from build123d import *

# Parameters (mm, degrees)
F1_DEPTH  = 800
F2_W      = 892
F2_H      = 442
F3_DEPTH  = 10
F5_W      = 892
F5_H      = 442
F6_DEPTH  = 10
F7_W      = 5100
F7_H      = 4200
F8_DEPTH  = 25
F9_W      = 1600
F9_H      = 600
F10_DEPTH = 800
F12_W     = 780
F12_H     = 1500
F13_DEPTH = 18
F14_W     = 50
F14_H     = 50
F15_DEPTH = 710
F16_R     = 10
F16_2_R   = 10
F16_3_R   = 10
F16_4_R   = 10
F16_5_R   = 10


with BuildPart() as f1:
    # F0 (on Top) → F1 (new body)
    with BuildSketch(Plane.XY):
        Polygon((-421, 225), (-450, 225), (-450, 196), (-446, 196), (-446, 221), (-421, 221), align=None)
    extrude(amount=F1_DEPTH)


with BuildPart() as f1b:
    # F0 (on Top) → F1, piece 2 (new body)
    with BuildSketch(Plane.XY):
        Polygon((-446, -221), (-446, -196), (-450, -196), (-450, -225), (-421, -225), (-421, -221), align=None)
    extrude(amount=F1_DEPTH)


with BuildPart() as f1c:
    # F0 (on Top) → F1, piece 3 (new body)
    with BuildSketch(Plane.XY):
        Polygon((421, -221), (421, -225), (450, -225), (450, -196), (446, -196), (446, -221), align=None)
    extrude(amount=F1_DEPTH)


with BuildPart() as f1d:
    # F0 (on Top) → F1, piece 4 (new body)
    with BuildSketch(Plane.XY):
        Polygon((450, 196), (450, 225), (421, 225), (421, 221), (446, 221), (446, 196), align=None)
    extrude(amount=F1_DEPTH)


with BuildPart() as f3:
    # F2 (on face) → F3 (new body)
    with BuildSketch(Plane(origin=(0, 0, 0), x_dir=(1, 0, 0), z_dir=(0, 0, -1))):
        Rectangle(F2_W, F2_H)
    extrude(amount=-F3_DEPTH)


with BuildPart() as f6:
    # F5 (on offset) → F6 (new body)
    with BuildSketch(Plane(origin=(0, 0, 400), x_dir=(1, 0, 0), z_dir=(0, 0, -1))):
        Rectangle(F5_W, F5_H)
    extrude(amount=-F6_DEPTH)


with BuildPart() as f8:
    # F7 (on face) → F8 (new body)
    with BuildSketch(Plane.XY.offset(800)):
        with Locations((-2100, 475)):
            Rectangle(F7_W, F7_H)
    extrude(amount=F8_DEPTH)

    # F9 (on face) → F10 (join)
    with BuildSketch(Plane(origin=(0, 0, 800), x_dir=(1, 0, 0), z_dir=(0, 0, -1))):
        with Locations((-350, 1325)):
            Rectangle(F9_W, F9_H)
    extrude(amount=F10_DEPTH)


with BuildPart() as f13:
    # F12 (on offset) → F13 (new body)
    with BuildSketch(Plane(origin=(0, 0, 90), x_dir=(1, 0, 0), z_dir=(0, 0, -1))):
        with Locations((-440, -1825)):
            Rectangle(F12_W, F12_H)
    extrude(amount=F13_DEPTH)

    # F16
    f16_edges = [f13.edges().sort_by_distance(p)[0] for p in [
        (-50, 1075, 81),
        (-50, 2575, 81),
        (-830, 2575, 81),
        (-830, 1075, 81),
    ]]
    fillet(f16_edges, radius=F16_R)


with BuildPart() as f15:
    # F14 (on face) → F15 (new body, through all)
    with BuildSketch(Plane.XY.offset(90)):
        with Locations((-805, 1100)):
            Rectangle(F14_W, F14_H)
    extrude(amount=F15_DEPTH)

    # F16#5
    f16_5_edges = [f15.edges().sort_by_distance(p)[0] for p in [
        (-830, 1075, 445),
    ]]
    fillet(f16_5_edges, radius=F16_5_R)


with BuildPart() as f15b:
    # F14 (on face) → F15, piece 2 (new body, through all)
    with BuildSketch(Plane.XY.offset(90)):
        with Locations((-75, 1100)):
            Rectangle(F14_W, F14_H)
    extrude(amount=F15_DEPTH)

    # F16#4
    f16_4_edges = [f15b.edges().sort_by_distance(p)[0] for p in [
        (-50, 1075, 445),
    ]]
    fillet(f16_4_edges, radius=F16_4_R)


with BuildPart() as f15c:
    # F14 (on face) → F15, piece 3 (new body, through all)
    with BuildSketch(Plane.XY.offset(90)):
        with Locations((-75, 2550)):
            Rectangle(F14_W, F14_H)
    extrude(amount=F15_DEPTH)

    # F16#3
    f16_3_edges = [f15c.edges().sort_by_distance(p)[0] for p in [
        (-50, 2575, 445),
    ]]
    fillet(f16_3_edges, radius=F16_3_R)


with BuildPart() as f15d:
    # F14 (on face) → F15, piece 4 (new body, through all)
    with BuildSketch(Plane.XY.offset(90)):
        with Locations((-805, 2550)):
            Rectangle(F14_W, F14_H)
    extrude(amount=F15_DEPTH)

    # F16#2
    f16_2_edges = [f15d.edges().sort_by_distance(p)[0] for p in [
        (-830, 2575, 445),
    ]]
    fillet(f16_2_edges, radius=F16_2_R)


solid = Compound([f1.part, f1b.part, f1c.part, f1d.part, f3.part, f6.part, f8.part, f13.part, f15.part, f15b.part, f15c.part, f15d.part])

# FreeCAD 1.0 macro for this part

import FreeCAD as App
import Part
import Sketcher
Q = App.Units.Quantity


def edges_at(feature, points):
    """Names of the edges that pass closest to the given points."""
    edges = feature.Shape.Edges
    near = lambda p: min(range(len(edges)), key=lambda i: edges[i].distToShape(Part.Vertex(*p))[0])
    return sorted({f"Edge{near(p) + 1}" for p in points})


def add_polygon(sketch, points):
    """Adds a closed chain of lines whose ends are joined by coincident constraints."""
    first, n = sketch.GeometryCount, len(points)
    for a, b in zip(points, points[1:] + points[:1]):
        sketch.addGeometry(Part.LineSegment(App.Vector(*a, 0), App.Vector(*b, 0)), False)
    for i in range(n):
        sketch.addConstraint(Sketcher.Constraint("Coincident", first + i, 2, first + (i + 1) % n, 1))

doc = App.newDocument("Part")
body = doc.addObject("PartDesign::Body", "Body")

# Sketch on XY plane
sketch1 = body.newObject("Sketcher::SketchObject", "Sketch")
sketch1.AttachmentSupport = (doc.getObject("XY_Plane"), [""])
sketch1.MapMode = "FlatFace"
add_polygon(sketch1, [(-421, 225), (-450, 225), (-450, 196), (-446, 196), (-446, 221), (-421, 221)])  # lines 0-5
sketch1.addConstraint([
    Sketcher.Constraint("Horizontal", 0),
    Sketcher.Constraint("Vertical", 1),
    Sketcher.Constraint("Horizontal", 2),
    Sketcher.Constraint("Vertical", 3),
    Sketcher.Constraint("Horizontal", 4),
    Sketcher.Constraint("Vertical", 5),
    Sketcher.Constraint("Equal", 0, 1),
    Sketcher.Constraint("Equal", 4, 3),
    Sketcher.Constraint("DistanceX", 0, 2, 0, 1, Q("29 mm")),
    Sketcher.Constraint("DistanceX", 2, 1, 2, 2, Q("4 mm")),
    Sketcher.Constraint("DistanceX", 0, 2, -1, 1, Q("450 mm")),
    Sketcher.Constraint("DistanceY", -1, 1, 0, 2, Q("225 mm")),
])
pad1 = body.newObject("PartDesign::Pad", "Pad")
pad1.Profile = sketch1
pad1.Length = 800
body2 = doc.addObject("PartDesign::Body", "Body001")

# Sketch on XY plane
sketch2 = body2.newObject("Sketcher::SketchObject", "Sketch001")
sketch2.AttachmentSupport = (doc.getObject("XY_Plane001"), [""])
sketch2.MapMode = "FlatFace"
add_polygon(sketch2, [(-446, -221), (-446, -196), (-450, -196), (-450, -225), (-421, -225), (-421, -221)])  # lines 0-5
sketch2.addConstraint([
    Sketcher.Constraint("Vertical", 0),
    Sketcher.Constraint("Horizontal", 1),
    Sketcher.Constraint("Vertical", 2),
    Sketcher.Constraint("Horizontal", 3),
    Sketcher.Constraint("Vertical", 4),
    Sketcher.Constraint("Horizontal", 5),
    Sketcher.Constraint("Equal", 5, 0),
    Sketcher.Constraint("Equal", 3, 2),
    Sketcher.Constraint("DistanceX", 1, 2, 1, 1, Q("4 mm")),
    Sketcher.Constraint("DistanceX", 3, 1, 3, 2, Q("29 mm")),
    Sketcher.Constraint("DistanceX", 0, 2, -1, 1, Q("446 mm")),
    Sketcher.Constraint("DistanceY", 0, 2, -1, 1, Q("196 mm")),
])
pad2 = body2.newObject("PartDesign::Pad", "Pad001")
pad2.Profile = sketch2
pad2.Length = 800
body3 = doc.addObject("PartDesign::Body", "Body002")

# Sketch on XY plane
sketch3 = body3.newObject("Sketcher::SketchObject", "Sketch002")
sketch3.AttachmentSupport = (doc.getObject("XY_Plane002"), [""])
sketch3.MapMode = "FlatFace"
add_polygon(sketch3, [(421, -221), (421, -225), (450, -225), (450, -196), (446, -196), (446, -221)])  # lines 0-5
sketch3.addConstraint([
    Sketcher.Constraint("Vertical", 0),
    Sketcher.Constraint("Horizontal", 1),
    Sketcher.Constraint("Vertical", 2),
    Sketcher.Constraint("Horizontal", 3),
    Sketcher.Constraint("Vertical", 4),
    Sketcher.Constraint("Horizontal", 5),
    Sketcher.Constraint("Equal", 3, 0),
    Sketcher.Constraint("Equal", 1, 2),
    Sketcher.Constraint("DistanceX", 1, 1, 1, 2, Q("29 mm")),
    Sketcher.Constraint("DistanceX", 3, 2, 3, 1, Q("4 mm")),
    Sketcher.Constraint("DistanceX", -1, 1, 0, 2, Q("421 mm")),
    Sketcher.Constraint("DistanceY", 0, 2, -1, 1, Q("225 mm")),
])
pad3 = body3.newObject("PartDesign::Pad", "Pad002")
pad3.Profile = sketch3
pad3.Length = 800
body4 = doc.addObject("PartDesign::Body", "Body003")

# Sketch on XY plane
sketch4 = body4.newObject("Sketcher::SketchObject", "Sketch003")
sketch4.AttachmentSupport = (doc.getObject("XY_Plane003"), [""])
sketch4.MapMode = "FlatFace"
add_polygon(sketch4, [(450, 196), (450, 225), (421, 225), (421, 221), (446, 221), (446, 196)])  # lines 0-5
sketch4.addConstraint([
    Sketcher.Constraint("Vertical", 0),
    Sketcher.Constraint("Horizontal", 1),
    Sketcher.Constraint("Vertical", 2),
    Sketcher.Constraint("Horizontal", 3),
    Sketcher.Constraint("Vertical", 4),
    Sketcher.Constraint("Horizontal", 5),
    Sketcher.Constraint("Equal", 1, 0),
    Sketcher.Constraint("Equal", 5, 2),
    Sketcher.Constraint("DistanceX", 1, 2, 1, 1, Q("29 mm")),
    Sketcher.Constraint("DistanceX", 3, 1, 3, 2, Q("25 mm")),
    Sketcher.Constraint("DistanceX", -1, 1, 0, 2, Q("450 mm")),
    Sketcher.Constraint("DistanceY", -1, 1, 0, 2, Q("225 mm")),
])
pad4 = body4.newObject("PartDesign::Pad", "Pad003")
pad4.Profile = sketch4
pad4.Length = 800
body5 = doc.addObject("PartDesign::Body", "Body004")

# Sketch on XY plane
sketch5 = body5.newObject("Sketcher::SketchObject", "Sketch004")
sketch5.AttachmentSupport = (doc.getObject("XY_Plane004"), [""])
sketch5.MapMode = "FlatFace"
add_polygon(sketch5, [(-446, -221), (-446, 221), (446, 221), (446, -221)])  # lines 0-3
sketch5.addConstraint([
    Sketcher.Constraint("Vertical", 0),
    Sketcher.Constraint("Horizontal", 1),
    Sketcher.Constraint("Vertical", 2),
    Sketcher.Constraint("Horizontal", 3),
    Sketcher.Constraint("Symmetric", 0, 2, 2, 2, -1, 1),
    Sketcher.Constraint("DistanceX", 1, 1, 1, 2, Q("892 mm")),
    Sketcher.Constraint("DistanceY", 0, 1, 0, 2, Q("442 mm")),
])
pad5 = body5.newObject("PartDesign::Pad", "Pad004")
pad5.Profile = sketch5
pad5.Length = 10
body6 = doc.addObject("PartDesign::Body", "Body005")

# Sketch on XY plane
sketch6 = body6.newObject("Sketcher::SketchObject", "Sketch005")
sketch6.AttachmentSupport = (doc.getObject("XY_Plane005"), [""])
sketch6.MapMode = "FlatFace"
sketch6.AttachmentOffset = App.Placement(App.Vector(0, 0, 400), App.Rotation())
add_polygon(sketch6, [(-446, -221), (-446, 221), (446, 221), (446, -221)])  # lines 0-3
sketch6.addConstraint([
    Sketcher.Constraint("Vertical", 0),
    Sketcher.Constraint("Horizontal", 1),
    Sketcher.Constraint("Vertical", 2),
    Sketcher.Constraint("Horizontal", 3),
    Sketcher.Constraint("Symmetric", 0, 2, 2, 2, -1, 1),
    Sketcher.Constraint("DistanceX", 1, 1, 1, 2, Q("892 mm")),
    Sketcher.Constraint("DistanceY", 0, 1, 0, 2, Q("442 mm")),
])
pad6 = body6.newObject("PartDesign::Pad", "Pad005")
pad6.Profile = sketch6
pad6.Length = 10
body7 = doc.addObject("PartDesign::Body", "Body006")

# Sketch on XY plane
sketch7 = body7.newObject("Sketcher::SketchObject", "Sketch006")
sketch7.AttachmentSupport = (doc.getObject("XY_Plane006"), [""])
sketch7.MapMode = "FlatFace"
sketch7.AttachmentOffset = App.Placement(App.Vector(0, 0, 800), App.Rotation())
add_polygon(sketch7, [(-4650, 2575), (-4650, -1625), (450, -1625), (450, 2575)])  # lines 0-3
sketch7.addConstraint([
    Sketcher.Constraint("Vertical", 0),
    Sketcher.Constraint("Horizontal", 1),
    Sketcher.Constraint("Vertical", 2),
    Sketcher.Constraint("Horizontal", 3),
    Sketcher.Constraint("DistanceX", 1, 1, 1, 2, Q("5100 mm")),
    Sketcher.Constraint("DistanceY", 0, 2, 0, 1, Q("4200 mm")),
    Sketcher.Constraint("DistanceX", 0, 2, -1, 1, Q("4650 mm")),
    Sketcher.Constraint("DistanceY", 0, 2, -1, 1, Q("1625 mm")),
])
pad7 = body7.newObject("PartDesign::Pad", "Pad006")
pad7.Profile = sketch7
pad7.Length = 25

# Sketch on XY plane
sketch8 = body7.newObject("Sketcher::SketchObject", "Sketch007")
sketch8.AttachmentSupport = (doc.getObject("XY_Plane006"), [""])
sketch8.MapMode = "FlatFace"
sketch8.AttachmentOffset = App.Placement(App.Vector(0, 0, 800), App.Rotation())
add_polygon(sketch8, [(-1150, -1625), (-1150, -1025), (450, -1025), (450, -1625)])  # lines 0-3
sketch8.addConstraint([
    Sketcher.Constraint("Vertical", 0),
    Sketcher.Constraint("Horizontal", 1),
    Sketcher.Constraint("Vertical", 2),
    Sketcher.Constraint("Horizontal", 3),
    Sketcher.Constraint("DistanceX", 1, 1, 1, 2, Q("1600 mm")),
    Sketcher.Constraint("DistanceY", 0, 1, 0, 2, Q("600 mm")),
    Sketcher.Constraint("DistanceX", 0, 2, -1, 1, Q("1150 mm")),
    Sketcher.Constraint("DistanceY", 0, 2, -1, 1, Q("1025 mm")),
])
pad8 = body7.newObject("PartDesign::Pad", "Pad007")
pad8.Profile = sketch8
pad8.Length = 800
pad8.Reversed = True
body8 = doc.addObject("PartDesign::Body", "Body007")

# Sketch on XY plane
sketch9 = body8.newObject("Sketcher::SketchObject", "Sketch008")
sketch9.AttachmentSupport = (doc.getObject("XY_Plane007"), [""])
sketch9.MapMode = "FlatFace"
sketch9.AttachmentOffset = App.Placement(App.Vector(0, 0, 90), App.Rotation())
add_polygon(sketch9, [(-830, 1075), (-830, 2575), (-50, 2575), (-50, 1075)])  # lines 0-3
sketch9.addConstraint([
    Sketcher.Constraint("Vertical", 0),
    Sketcher.Constraint("Horizontal", 1),
    Sketcher.Constraint("Vertical", 2),
    Sketcher.Constraint("Horizontal", 3),
    Sketcher.Constraint("DistanceX", 1, 1, 1, 2, Q("780 mm")),
    Sketcher.Constraint("DistanceY", 0, 1, 0, 2, Q("1500 mm")),
    Sketcher.Constraint("DistanceX", 0, 2, -1, 1, Q("830 mm")),
    Sketcher.Constraint("DistanceY", -1, 1, 0, 2, Q("2575 mm")),
])
pad9 = body8.newObject("PartDesign::Pad", "Pad008")
pad9.Profile = sketch9
pad9.Length = 18
pad9.Reversed = True
doc.recompute()

fillet = body8.newObject("PartDesign::Fillet", "Fillet")
fillet.Base = (pad9, edges_at(pad9, [
    (-50, 1075, 81),
    (-50, 2575, 81),
    (-830, 2575, 81),
    (-830, 1075, 81),
]))
fillet.Radius = 10
body9 = doc.addObject("PartDesign::Body", "Body008")

# Sketch on XY plane
sketch10 = body9.newObject("Sketcher::SketchObject", "Sketch009")
sketch10.AttachmentSupport = (doc.getObject("XY_Plane008"), [""])
sketch10.MapMode = "FlatFace"
sketch10.AttachmentOffset = App.Placement(App.Vector(0, 0, 90), App.Rotation())
add_polygon(sketch10, [(-830, 1125), (-830, 1075), (-780, 1075), (-780, 1125)])  # lines 0-3
sketch10.addConstraint([
    Sketcher.Constraint("Vertical", 0),
    Sketcher.Constraint("Horizontal", 1),
    Sketcher.Constraint("Vertical", 2),
    Sketcher.Constraint("Horizontal", 3),
    Sketcher.Constraint("Equal", 3, 0),
    Sketcher.Constraint("DistanceX", 1, 1, 1, 2, Q("50 mm")),
    Sketcher.Constraint("DistanceX", 0, 2, -1, 1, Q("830 mm")),
    Sketcher.Constraint("DistanceY", -1, 1, 0, 2, Q("1075 mm")),
])
pad10 = body9.newObject("PartDesign::Pad", "Pad009")
pad10.Profile = sketch10
pad10.Length = 710
doc.recompute()

fillet2 = body9.newObject("PartDesign::Fillet", "Fillet001")
fillet2.Base = (pad10, edges_at(pad10, [(-830, 1075, 445)]))
fillet2.Radius = 10
body10 = doc.addObject("PartDesign::Body", "Body009")

# Sketch on XY plane
sketch11 = body10.newObject("Sketcher::SketchObject", "Sketch010")
sketch11.AttachmentSupport = (doc.getObject("XY_Plane009"), [""])
sketch11.MapMode = "FlatFace"
sketch11.AttachmentOffset = App.Placement(App.Vector(0, 0, 90), App.Rotation())
add_polygon(sketch11, [(-100, 1125), (-100, 1075), (-50, 1075), (-50, 1125)])  # lines 0-3
sketch11.addConstraint([
    Sketcher.Constraint("Vertical", 0),
    Sketcher.Constraint("Horizontal", 1),
    Sketcher.Constraint("Vertical", 2),
    Sketcher.Constraint("Horizontal", 3),
    Sketcher.Constraint("Equal", 3, 0),
    Sketcher.Constraint("DistanceX", 1, 1, 1, 2, Q("50 mm")),
    Sketcher.Constraint("DistanceX", 0, 2, -1, 1, Q("100 mm")),
    Sketcher.Constraint("DistanceY", -1, 1, 0, 2, Q("1075 mm")),
])
pad11 = body10.newObject("PartDesign::Pad", "Pad010")
pad11.Profile = sketch11
pad11.Length = 710
doc.recompute()

fillet3 = body10.newObject("PartDesign::Fillet", "Fillet002")
fillet3.Base = (pad11, edges_at(pad11, [(-50, 1075, 445)]))
fillet3.Radius = 10
body11 = doc.addObject("PartDesign::Body", "Body010")

# Sketch on XY plane
sketch12 = body11.newObject("Sketcher::SketchObject", "Sketch011")
sketch12.AttachmentSupport = (doc.getObject("XY_Plane010"), [""])
sketch12.MapMode = "FlatFace"
sketch12.AttachmentOffset = App.Placement(App.Vector(0, 0, 90), App.Rotation())
add_polygon(sketch12, [(-100, 2575), (-100, 2525), (-50, 2525), (-50, 2575)])  # lines 0-3
sketch12.addConstraint([
    Sketcher.Constraint("Vertical", 0),
    Sketcher.Constraint("Horizontal", 1),
    Sketcher.Constraint("Vertical", 2),
    Sketcher.Constraint("Horizontal", 3),
    Sketcher.Constraint("Equal", 3, 0),
    Sketcher.Constraint("DistanceX", 1, 1, 1, 2, Q("50 mm")),
    Sketcher.Constraint("DistanceX", 0, 2, -1, 1, Q("100 mm")),
    Sketcher.Constraint("DistanceY", -1, 1, 0, 2, Q("2525 mm")),
])
pad12 = body11.newObject("PartDesign::Pad", "Pad011")
pad12.Profile = sketch12
pad12.Length = 710
doc.recompute()

fillet4 = body11.newObject("PartDesign::Fillet", "Fillet003")
fillet4.Base = (pad12, edges_at(pad12, [(-50, 2575, 445)]))
fillet4.Radius = 10
body12 = doc.addObject("PartDesign::Body", "Body011")

# Sketch on XY plane
sketch13 = body12.newObject("Sketcher::SketchObject", "Sketch012")
sketch13.AttachmentSupport = (doc.getObject("XY_Plane011"), [""])
sketch13.MapMode = "FlatFace"
sketch13.AttachmentOffset = App.Placement(App.Vector(0, 0, 90), App.Rotation())
add_polygon(sketch13, [(-830, 2575), (-830, 2525), (-780, 2525), (-780, 2575)])  # lines 0-3
sketch13.addConstraint([
    Sketcher.Constraint("Vertical", 0),
    Sketcher.Constraint("Horizontal", 1),
    Sketcher.Constraint("Vertical", 2),
    Sketcher.Constraint("Horizontal", 3),
    Sketcher.Constraint("Equal", 3, 0),
    Sketcher.Constraint("DistanceX", 1, 1, 1, 2, Q("50 mm")),
    Sketcher.Constraint("DistanceX", 0, 2, -1, 1, Q("830 mm")),
    Sketcher.Constraint("DistanceY", -1, 1, 0, 2, Q("2525 mm")),
])
pad13 = body12.newObject("PartDesign::Pad", "Pad012")
pad13.Profile = sketch13
pad13.Length = 710
doc.recompute()

fillet5 = body12.newObject("PartDesign::Fillet", "Fillet004")
fillet5.Base = (pad13, edges_at(pad13, [(-830, 2575, 445)]))
fillet5.Radius = 10

doc.recompute()
